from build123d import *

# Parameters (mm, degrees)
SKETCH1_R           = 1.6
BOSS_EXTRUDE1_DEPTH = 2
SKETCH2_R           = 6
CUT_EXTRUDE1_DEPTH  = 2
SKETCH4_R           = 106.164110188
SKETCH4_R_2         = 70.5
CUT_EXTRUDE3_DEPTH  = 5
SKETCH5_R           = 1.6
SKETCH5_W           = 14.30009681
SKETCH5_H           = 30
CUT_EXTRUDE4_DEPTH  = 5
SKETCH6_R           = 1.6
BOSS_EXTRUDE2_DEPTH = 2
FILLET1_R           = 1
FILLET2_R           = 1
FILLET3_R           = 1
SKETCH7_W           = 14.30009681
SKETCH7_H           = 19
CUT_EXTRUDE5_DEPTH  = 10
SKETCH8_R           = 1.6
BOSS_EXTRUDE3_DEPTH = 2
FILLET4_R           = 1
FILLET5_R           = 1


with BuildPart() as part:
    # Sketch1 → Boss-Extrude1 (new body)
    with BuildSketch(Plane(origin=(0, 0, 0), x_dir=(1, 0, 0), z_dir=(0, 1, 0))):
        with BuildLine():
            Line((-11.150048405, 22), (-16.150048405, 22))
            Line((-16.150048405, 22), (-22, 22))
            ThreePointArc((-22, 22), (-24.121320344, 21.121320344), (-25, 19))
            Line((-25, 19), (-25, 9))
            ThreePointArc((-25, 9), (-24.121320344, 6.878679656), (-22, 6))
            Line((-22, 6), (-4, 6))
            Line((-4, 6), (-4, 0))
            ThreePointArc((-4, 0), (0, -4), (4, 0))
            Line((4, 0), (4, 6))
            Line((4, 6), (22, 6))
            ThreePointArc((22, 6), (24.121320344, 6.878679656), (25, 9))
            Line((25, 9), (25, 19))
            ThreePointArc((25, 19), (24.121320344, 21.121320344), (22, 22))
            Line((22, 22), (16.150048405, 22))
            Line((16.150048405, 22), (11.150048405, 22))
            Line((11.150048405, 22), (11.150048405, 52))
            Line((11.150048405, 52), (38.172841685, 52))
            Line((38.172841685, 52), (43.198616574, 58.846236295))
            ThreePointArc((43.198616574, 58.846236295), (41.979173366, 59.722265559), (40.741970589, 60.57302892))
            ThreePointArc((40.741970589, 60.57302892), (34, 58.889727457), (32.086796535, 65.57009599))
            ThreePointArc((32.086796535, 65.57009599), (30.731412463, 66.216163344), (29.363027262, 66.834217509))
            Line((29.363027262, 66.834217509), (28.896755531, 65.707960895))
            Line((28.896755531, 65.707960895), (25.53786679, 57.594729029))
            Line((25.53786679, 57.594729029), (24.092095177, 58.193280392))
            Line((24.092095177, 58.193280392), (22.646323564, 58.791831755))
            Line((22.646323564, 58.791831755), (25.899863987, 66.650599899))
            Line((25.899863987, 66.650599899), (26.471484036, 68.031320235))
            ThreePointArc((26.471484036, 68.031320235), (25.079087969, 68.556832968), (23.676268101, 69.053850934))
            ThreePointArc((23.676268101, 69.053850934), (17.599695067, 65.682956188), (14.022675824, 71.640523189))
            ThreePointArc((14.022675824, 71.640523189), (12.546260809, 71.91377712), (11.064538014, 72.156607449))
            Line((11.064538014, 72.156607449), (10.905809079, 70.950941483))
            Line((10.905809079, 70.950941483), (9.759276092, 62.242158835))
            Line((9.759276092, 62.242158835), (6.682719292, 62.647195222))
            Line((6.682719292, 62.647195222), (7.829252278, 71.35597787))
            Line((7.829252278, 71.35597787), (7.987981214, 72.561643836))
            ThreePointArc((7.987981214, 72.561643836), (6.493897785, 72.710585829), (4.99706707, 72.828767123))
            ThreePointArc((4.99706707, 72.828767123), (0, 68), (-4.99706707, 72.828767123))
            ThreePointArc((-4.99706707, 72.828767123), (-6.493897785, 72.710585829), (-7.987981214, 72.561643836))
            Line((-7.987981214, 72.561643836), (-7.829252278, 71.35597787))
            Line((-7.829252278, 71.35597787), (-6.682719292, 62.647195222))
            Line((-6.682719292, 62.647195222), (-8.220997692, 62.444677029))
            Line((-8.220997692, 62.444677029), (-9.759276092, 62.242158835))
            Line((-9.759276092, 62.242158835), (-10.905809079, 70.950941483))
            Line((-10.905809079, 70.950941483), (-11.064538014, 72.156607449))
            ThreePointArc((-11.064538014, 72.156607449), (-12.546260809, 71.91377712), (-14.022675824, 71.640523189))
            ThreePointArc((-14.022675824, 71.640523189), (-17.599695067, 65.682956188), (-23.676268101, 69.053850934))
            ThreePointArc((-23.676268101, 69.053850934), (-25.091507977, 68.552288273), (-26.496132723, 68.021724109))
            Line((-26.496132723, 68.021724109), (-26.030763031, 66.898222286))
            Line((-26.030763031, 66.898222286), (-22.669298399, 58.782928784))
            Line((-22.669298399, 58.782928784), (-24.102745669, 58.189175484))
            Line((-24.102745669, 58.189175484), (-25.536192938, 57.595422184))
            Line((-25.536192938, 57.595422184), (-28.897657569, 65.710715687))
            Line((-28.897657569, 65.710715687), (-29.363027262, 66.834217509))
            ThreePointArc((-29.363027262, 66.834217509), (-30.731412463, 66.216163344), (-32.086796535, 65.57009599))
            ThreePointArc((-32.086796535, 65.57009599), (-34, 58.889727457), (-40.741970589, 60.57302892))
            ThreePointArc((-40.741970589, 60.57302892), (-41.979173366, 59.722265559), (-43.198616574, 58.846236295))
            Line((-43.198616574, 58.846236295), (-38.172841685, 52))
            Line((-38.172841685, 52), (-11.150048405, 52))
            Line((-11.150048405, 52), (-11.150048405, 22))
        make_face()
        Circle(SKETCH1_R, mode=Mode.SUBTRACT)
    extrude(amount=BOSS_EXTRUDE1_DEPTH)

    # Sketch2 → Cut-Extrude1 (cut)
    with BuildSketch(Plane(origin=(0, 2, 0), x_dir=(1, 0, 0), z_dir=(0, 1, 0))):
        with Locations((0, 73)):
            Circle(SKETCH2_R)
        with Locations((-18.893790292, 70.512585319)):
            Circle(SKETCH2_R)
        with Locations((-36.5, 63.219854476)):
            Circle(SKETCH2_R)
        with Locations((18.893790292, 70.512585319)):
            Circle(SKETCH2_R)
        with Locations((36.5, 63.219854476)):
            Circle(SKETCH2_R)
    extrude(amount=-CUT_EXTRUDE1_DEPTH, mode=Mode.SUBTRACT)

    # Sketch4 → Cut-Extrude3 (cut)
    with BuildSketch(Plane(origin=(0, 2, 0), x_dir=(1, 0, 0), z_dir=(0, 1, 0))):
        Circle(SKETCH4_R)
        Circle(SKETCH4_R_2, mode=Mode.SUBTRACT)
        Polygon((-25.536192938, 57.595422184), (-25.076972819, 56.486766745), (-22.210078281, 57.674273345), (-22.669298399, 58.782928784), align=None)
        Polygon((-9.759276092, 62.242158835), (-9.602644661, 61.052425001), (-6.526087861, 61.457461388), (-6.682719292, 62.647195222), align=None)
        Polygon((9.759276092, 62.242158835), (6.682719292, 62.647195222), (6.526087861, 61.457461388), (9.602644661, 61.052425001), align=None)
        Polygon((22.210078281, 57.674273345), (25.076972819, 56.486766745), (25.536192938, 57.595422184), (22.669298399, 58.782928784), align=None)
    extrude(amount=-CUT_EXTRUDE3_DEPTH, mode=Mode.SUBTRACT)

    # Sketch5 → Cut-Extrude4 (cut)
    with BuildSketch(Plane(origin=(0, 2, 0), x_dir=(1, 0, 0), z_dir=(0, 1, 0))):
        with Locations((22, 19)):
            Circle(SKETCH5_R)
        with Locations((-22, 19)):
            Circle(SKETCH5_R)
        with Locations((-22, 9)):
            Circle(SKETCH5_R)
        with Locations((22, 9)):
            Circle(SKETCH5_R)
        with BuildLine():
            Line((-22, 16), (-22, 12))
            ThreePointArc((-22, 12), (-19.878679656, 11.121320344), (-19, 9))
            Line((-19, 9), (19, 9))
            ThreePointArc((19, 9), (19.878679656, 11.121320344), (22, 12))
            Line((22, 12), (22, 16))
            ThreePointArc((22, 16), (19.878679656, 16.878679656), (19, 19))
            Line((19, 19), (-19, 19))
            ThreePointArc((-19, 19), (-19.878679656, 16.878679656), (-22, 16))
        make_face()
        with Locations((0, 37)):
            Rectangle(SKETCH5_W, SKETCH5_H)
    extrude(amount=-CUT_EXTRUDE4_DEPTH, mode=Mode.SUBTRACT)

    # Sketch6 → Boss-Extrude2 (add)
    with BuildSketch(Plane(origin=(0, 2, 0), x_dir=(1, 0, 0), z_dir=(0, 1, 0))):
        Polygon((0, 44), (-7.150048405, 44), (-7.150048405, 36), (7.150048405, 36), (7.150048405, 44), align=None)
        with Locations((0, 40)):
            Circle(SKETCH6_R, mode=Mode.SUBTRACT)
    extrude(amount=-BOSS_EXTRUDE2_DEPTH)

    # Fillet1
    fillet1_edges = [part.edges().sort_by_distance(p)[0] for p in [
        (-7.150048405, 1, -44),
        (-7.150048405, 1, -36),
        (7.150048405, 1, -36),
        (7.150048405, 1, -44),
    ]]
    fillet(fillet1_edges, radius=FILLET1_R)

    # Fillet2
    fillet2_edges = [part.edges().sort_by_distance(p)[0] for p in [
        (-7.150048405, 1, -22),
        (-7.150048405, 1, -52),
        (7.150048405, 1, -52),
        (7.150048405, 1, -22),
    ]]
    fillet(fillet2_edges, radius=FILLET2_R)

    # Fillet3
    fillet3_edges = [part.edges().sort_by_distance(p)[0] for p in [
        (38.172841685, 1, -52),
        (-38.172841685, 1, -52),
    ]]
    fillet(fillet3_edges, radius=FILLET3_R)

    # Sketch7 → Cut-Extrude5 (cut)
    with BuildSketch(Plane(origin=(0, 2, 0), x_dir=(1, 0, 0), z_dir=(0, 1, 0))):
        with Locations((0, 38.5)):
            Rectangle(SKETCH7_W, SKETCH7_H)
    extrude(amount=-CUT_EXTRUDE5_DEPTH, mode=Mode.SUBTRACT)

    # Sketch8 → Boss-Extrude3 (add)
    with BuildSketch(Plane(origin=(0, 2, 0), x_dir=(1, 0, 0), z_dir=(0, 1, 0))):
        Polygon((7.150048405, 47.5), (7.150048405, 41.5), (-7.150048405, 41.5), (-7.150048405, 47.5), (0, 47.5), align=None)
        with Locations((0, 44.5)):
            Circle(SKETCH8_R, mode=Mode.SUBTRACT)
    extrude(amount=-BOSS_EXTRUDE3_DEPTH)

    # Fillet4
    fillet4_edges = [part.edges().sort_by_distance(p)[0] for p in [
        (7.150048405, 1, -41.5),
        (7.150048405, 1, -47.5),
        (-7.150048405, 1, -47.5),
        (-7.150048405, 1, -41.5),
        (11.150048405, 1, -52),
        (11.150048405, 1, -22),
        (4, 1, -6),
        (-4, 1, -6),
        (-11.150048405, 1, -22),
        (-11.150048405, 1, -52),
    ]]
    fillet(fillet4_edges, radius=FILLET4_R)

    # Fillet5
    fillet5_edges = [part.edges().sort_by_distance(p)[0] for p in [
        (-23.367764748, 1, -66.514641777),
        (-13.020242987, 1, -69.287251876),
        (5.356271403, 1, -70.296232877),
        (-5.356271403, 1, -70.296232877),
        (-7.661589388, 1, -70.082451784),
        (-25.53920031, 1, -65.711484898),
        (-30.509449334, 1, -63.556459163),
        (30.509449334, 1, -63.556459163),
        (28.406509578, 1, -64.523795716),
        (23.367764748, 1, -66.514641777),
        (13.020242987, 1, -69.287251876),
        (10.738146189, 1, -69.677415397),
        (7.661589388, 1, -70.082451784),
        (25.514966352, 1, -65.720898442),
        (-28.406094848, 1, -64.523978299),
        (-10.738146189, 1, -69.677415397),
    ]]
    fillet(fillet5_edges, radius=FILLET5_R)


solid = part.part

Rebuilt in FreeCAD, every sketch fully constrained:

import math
import FreeCAD as App
import Part
import Sketcher
from FreeCAD import Vector
Q = App.Units.Quantity


def edges_at(feature, points):
    """Names of the edges that pass closest to the given points."""
    edges = feature.Shape.Edges
    near = lambda p: min(range(len(edges)), key=lambda i: edges[i].distToShape(Part.Vertex(*p))[0])
    return sorted({f"Edge{near(p) + 1}" for p in points})


def add_polygon(sketch, points):
    """Adds a closed chain of lines whose ends are joined by coincident constraints."""
    first, n = sketch.GeometryCount, len(points)
    for a, b in zip(points, points[1:] + points[:1]):
        sketch.addGeometry(Part.LineSegment(App.Vector(*a, 0), App.Vector(*b, 0)), False)
    for i in range(n):
        sketch.addConstraint(Sketcher.Constraint("Coincident", first + i, 2, first + (i + 1) % n, 1))

doc = App.newDocument("Part")
body = doc.addObject("PartDesign::Body", "Body")

sketch1 = body.newObject("Sketcher::SketchObject", "Sketch")
sketch1.AttachmentSupport = (doc.getObject("XZ_Plane"), [""])
sketch1.MapMode = "FlatFace"
sketch1.addGeometry(Part.LineSegment(Vector(-11.2, -22, 0), Vector(-22, -22, 0)), False)
sketch1.addGeometry(Part.ArcOfCircle(Part.Circle(Vector(-22, -19, 0), Vector(0, 0, 1), 3), math.radians(180), math.radians(270)), False)
sketch1.addGeometry(Part.LineSegment(Vector(-25, -19, 0), Vector(-25, -9, 0)), False)
sketch1.addGeometry(Part.ArcOfCircle(Part.Circle(Vector(-22, -9, 0), Vector(0, 0, 1), 3), math.radians(90), math.radians(180)), False)
sketch1.addGeometry(Part.LineSegment(Vector(-22, -6, 0), Vector(-4, -6, 0)), False)
sketch1.addGeometry(Part.LineSegment(Vector(-4, -6, 0), Vector(-4, 0, 0)), False)
sketch1.addGeometry(Part.ArcOfCircle(Part.Circle(Vector(0, 0, 0), Vector(0, 0, 1), 4), math.radians(0), math.radians(180)), False)
sketch1.addGeometry(Part.LineSegment(Vector(4, 0, 0), Vector(4, -6, 0)), False)
sketch1.addGeometry(Part.LineSegment(Vector(4, -6, 0), Vector(22, -6, 0)), False)
sketch1.addGeometry(Part.ArcOfCircle(Part.Circle(Vector(22, -9, 0), Vector(0, 0, 1), 3), math.radians(0), math.radians(90)), False)
sketch1.addGeometry(Part.LineSegment(Vector(25, -9, 0), Vector(25, -19, 0)), False)
sketch1.addGeometry(Part.ArcOfCircle(Part.Circle(Vector(22, -19, 0), Vector(0, 0, 1), 3), math.radians(-90), math.radians(0)), False)
sketch1.addGeometry(Part.LineSegment(Vector(22, -22, 0), Vector(11.2, -22, 0)), False)
sketch1.addGeometry(Part.LineSegment(Vector(11.2, -22, 0), Vector(11.2, -52, 0)), False)
sketch1.addGeometry(Part.LineSegment(Vector(11.2, -52, 0), Vector(38.2, -52, 0)), False)
sketch1.addGeometry(Part.LineSegment(Vector(38.2, -52, 0), Vector(43.2, -58.8, 0)), False)
sketch1.addGeometry(Part.ArcOfCircle(Part.Circle(Vector(0, 0, 0), Vector(0, 0, 1), 73), math.radians(-56.07), math.radians(-53.72)), False)
sketch1.addGeometry(Part.ArcOfCircle(Part.Circle(Vector(36.5, -63.2, 0), Vector(0, 0, 1), 5), math.radians(32), math.radians(208)), False)
sketch1.addGeometry(Part.ArcOfCircle(Part.Circle(Vector(0, 0, 0), Vector(0, 0, 1), 73), math.radians(-66.28), math.radians(-63.93)), False)
sketch1.addGeometry(Part.LineSegment(Vector(29.4, -66.8, 0), Vector(28.9, -65.7, 0)), False)
sketch1.addGeometry(Part.LineSegment(Vector(28.9, -65.7, 0), Vector(25.5, -57.6, 0)), False)
sketch1.addGeometry(Part.LineSegment(Vector(25.5, -57.6, 0), Vector(22.6, -58.8, 0)), False)
sketch1.addGeometry(Part.LineSegment(Vector(22.6, -58.8, 0), Vector(25.9, -66.7, 0)), False)
sketch1.addGeometry(Part.LineSegment(Vector(25.9, -66.7, 0), Vector(26.5, -68, 0)), False)
sketch1.addGeometry(Part.ArcOfCircle(Part.Circle(Vector(0, 0, 0), Vector(0, 0, 1), 73), math.radians(-71.07), math.radians(-68.74)), False)
sketch1.addGeometry(Part.ArcOfCircle(Part.Circle(Vector(18.9, -70.5, 0), Vector(0, 0, 1), 5), math.radians(17), math.radians(193)), False)
sketch1.addGeometry(Part.ArcOfCircle(Part.Circle(Vector(0, 0, 0), Vector(0, 0, 1), 73), math.radians(-81.28), math.radians(-78.93)), False)
sketch1.addGeometry(Part.LineSegment(Vector(11.1, -72.2, 0), Vector(10.9, -71, 0)), False)
sketch1.addGeometry(Part.LineSegment(Vector(10.9, -71, 0), Vector(9.8, -62.2, 0)), False)
sketch1.addGeometry(Part.LineSegment(Vector(9.8, -62.2, 0), Vector(6.7, -62.6, 0)), False)
sketch1.addGeometry(Part.LineSegment(Vector(6.7, -62.6, 0), Vector(7.8, -71.4, 0)), False)
sketch1.addGeometry(Part.LineSegment(Vector(7.8, -71.4, 0), Vector(8, -72.6, 0)), False)
sketch1.addGeometry(Part.ArcOfCircle(Part.Circle(Vector(0, 0, 0), Vector(0, 0, 1), 73), math.radians(-86.07), math.radians(-83.72)), False)
sketch1.addGeometry(Part.ArcOfCircle(Part.Circle(Vector(0, -73, 0), Vector(0, 0, 1), 5), math.radians(2), math.radians(178)), False)
sketch1.addGeometry(Part.ArcOfCircle(Part.Circle(Vector(0, 0, 0), Vector(0, 0, 1), 73), math.radians(-96.28), math.radians(-93.93)), False)
sketch1.addGeometry(Part.LineSegment(Vector(-8, -72.6, 0), Vector(-7.8, -71.4, 0)), False)
sketch1.addGeometry(Part.LineSegment(Vector(-7.8, -71.4, 0), Vector(-6.7, -62.6, 0)), False)
sketch1.addGeometry(Part.LineSegment(Vector(-6.7, -62.6, 0), Vector(-8.2, -62.4, 0)), False)
sketch1.addGeometry(Part.LineSegment(Vector(-8.2, -62.4, 0), Vector(-9.8, -62.2, 0)), False)
sketch1.addGeometry(Part.LineSegment(Vector(-9.8, -62.2, 0), Vector(-10.9, -71, 0)), False)
sketch1.addGeometry(Part.LineSegment(Vector(-10.9, -71, 0), Vector(-11.1, -72.2, 0)), False)
sketch1.addGeometry(Part.ArcOfCircle(Part.Circle(Vector(0, 0, 0), Vector(0, 0, 1), 73), math.radians(-101.07), math.radians(-98.72)), False)
sketch1.addGeometry(Part.ArcOfCircle(Part.Circle(Vector(-18.9, -70.5, 0), Vector(0, 0, 1), 5), math.radians(-13), math.radians(163)), False)
sketch1.addGeometry(Part.ArcOfCircle(Part.Circle(Vector(0, 0, 0), Vector(0, 0, 1), 73), math.radians(-111.28), math.radians(-108.93)), False)
sketch1.addGeometry(Part.LineSegment(Vector(-26.5, -68, 0), Vector(-26, -66.9, 0)), False)
sketch1.addGeometry(Part.LineSegment(Vector(-26, -66.9, 0), Vector(-22.7, -58.8, 0)), False)
sketch1.addGeometry(Part.LineSegment(Vector(-22.7, -58.8, 0), Vector(-24.1, -58.2, 0)), False)
sketch1.addGeometry(Part.LineSegment(Vector(-24.1, -58.2, 0), Vector(-25.5, -57.6, 0)), False)
sketch1.addGeometry(Part.LineSegment(Vector(-25.5, -57.6, 0), Vector(-28.9, -65.7, 0)), False)
sketch1.addGeometry(Part.LineSegment(Vector(-28.9, -65.7, 0), Vector(-29.4, -66.8, 0)), False)
sketch1.addGeometry(Part.ArcOfCircle(Part.Circle(Vector(0, 0, 0), Vector(0, 0, 1), 73), math.radians(-116.07), math.radians(-113.72)), False)
sketch1.addGeometry(Part.ArcOfCircle(Part.Circle(Vector(-36.5, -63.2, 0), Vector(0, 0, 1), 5), math.radians(-28), math.radians(148)), False)
sketch1.addGeometry(Part.ArcOfCircle(Part.Circle(Vector(0, 0, 0), Vector(0, 0, 1), 73), math.radians(-126.28), math.radians(-123.93)), False)
sketch1.addGeometry(Part.LineSegment(Vector(-43.2, -58.8, 0), Vector(-38.2, -52, 0)), False)
sketch1.addGeometry(Part.LineSegment(Vector(-38.2, -52, 0), Vector(-11.2, -52, 0)), False)
sketch1.addGeometry(Part.LineSegment(Vector(-11.2, -52, 0), Vector(-11.2, -22, 0)), False)
sketch1.addGeometry(Part.Circle(Vector(0, 0, 0), Vector(0, 0, 1), 1.6), False)
sketch1.addConstraint(Sketcher.Constraint("Tangent", 0, 2, 1, 2))
sketch1.addConstraint(Sketcher.Constraint("Tangent", 1, 1, 2, 1))
sketch1.addConstraint(Sketcher.Constraint("Tangent", 2, 2, 3, 2))
sketch1.addConstraint(Sketcher.Constraint("Tangent", 3, 1, 4, 1))
sketch1.addConstraint(Sketcher.Constraint("Coincident", 4, 2, 5, 1))
sketch1.addConstraint(Sketcher.Constraint("Tangent", 5, 2, 6, 2))
sketch1.addConstraint(Sketcher.Constraint("Tangent", 6, 1, 7, 1))
sketch1.addConstraint(Sketcher.Constraint("Coincident", 7, 2, 8, 1))
sketch1.addConstraint(Sketcher.Constraint("Tangent", 8, 2, 9, 2))
sketch1.addConstraint(Sketcher.Constraint("Tangent", 9, 1, 10, 1))
sketch1.addConstraint(Sketcher.Constraint("Tangent", 10, 2, 11, 2))
sketch1.addConstraint(Sketcher.Constraint("Tangent", 11, 1, 12, 1))
sketch1.addConstraint(Sketcher.Constraint("Coincident", 12, 2, 13, 1))
sketch1.addConstraint(Sketcher.Constraint("Coincident", 13, 2, 14, 1))
sketch1.addConstraint(Sketcher.Constraint("Coincident", 14, 2, 15, 1))
sketch1.addConstraint(Sketcher.Constraint("Coincident", 15, 2, 16, 2))
sketch1.addConstraint(Sketcher.Constraint("Coincident", 16, 1, 17, 1))
sketch1.addConstraint(Sketcher.Constraint("Coincident", 17, 2, 18, 2))
sketch1.addConstraint(Sketcher.Constraint("Coincident", 18, 1, 19, 1))
sketch1.addConstraint(Sketcher.Constraint("Coincident", 19, 2, 20, 1))
sketch1.addConstraint(Sketcher.Constraint("Coincident", 20, 2, 21, 1))
sketch1.addConstraint(Sketcher.Constraint("Coincident", 21, 2, 22, 1))
sketch1.addConstraint(Sketcher.Constraint("Coincident", 22, 2, 23, 1))
sketch1.addConstraint(Sketcher.Constraint("Coincident", 23, 2, 24, 2))
sketch1.addConstraint(Sketcher.Constraint("Coincident", 24, 1, 25, 1))
sketch1.addConstraint(Sketcher.Constraint("Coincident", 25, 2, 26, 2))
sketch1.addConstraint(Sketcher.Constraint("Coincident", 26, 1, 27, 1))
sketch1.addConstraint(Sketcher.Constraint("Coincident", 27, 2, 28, 1))
sketch1.addConstraint(Sketcher.Constraint("Coincident", 28, 2, 29, 1))
sketch1.addConstraint(Sketcher.Constraint("Coincident", 29, 2, 30, 1))
sketch1.addConstraint(Sketcher.Constraint("Coincident", 30, 2, 31, 1))
sketch1.addConstraint(Sketcher.Constraint("Coincident", 31, 2, 32, 2))
sketch1.addConstraint(Sketcher.Constraint("Coincident", 32, 1, 33, 1))
sketch1.addConstraint(Sketcher.Constraint("Coincident", 33, 2, 34, 2))
sketch1.addConstraint(Sketcher.Constraint("Coincident", 34, 1, 35, 1))
sketch1.addConstraint(Sketcher.Constraint("Coincident", 35, 2, 36, 1))
sketch1.addConstraint(Sketcher.Constraint("Coincident", 36, 2, 37, 1))
sketch1.addConstraint(Sketcher.Constraint("Coincident", 37, 2, 38, 1))
sketch1.addConstraint(Sketcher.Constraint("Coincident", 38, 2, 39, 1))
sketch1.addConstraint(Sketcher.Constraint("Coincident", 39, 2, 40, 1))
sketch1.addConstraint(Sketcher.Constraint("Coincident", 40, 2, 41, 2))
sketch1.addConstraint(Sketcher.Constraint("Coincident", 41, 1, 42, 1))
sketch1.addConstraint(Sketcher.Constraint("Coincident", 42, 2, 43, 2))
sketch1.addConstraint(Sketcher.Constraint("Coincident", 43, 1, 44, 1))
sketch1.addConstraint(Sketcher.Constraint("Coincident", 44, 2, 45, 1))
sketch1.addConstraint(Sketcher.Constraint("Coincident", 45, 2, 46, 1))
sketch1.addConstraint(Sketcher.Constraint("Coincident", 46, 2, 47, 1))
sketch1.addConstraint(Sketcher.Constraint("Coincident", 47, 2, 48, 1))
sketch1.addConstraint(Sketcher.Constraint("Coincident", 48, 2, 49, 1))
sketch1.addConstraint(Sketcher.Constraint("Coincident", 49, 2, 50, 2))
sketch1.addConstraint(Sketcher.Constraint("Coincident", 50, 1, 51, 1))
sketch1.addConstraint(Sketcher.Constraint("Coincident", 51, 2, 52, 2))
sketch1.addConstraint(Sketcher.Constraint("Coincident", 52, 1, 53, 1))
sketch1.addConstraint(Sketcher.Constraint("Coincident", 53, 2, 54, 1))
sketch1.addConstraint(Sketcher.Constraint("Coincident", 54, 2, 55, 1))
sketch1.addConstraint(Sketcher.Constraint("Coincident", 55, 2, 0, 1))
sketch1.addConstraint(Sketcher.Constraint("Horizontal", 0))
sketch1.addConstraint(Sketcher.Constraint("Vertical", 2))
sketch1.addConstraint(Sketcher.Constraint("Horizontal", 4))
sketch1.addConstraint(Sketcher.Constraint("Vertical", 5))
sketch1.addConstraint(Sketcher.Constraint("Vertical", 7))
sketch1.addConstraint(Sketcher.Constraint("Horizontal", 8))
sketch1.addConstraint(Sketcher.Constraint("Vertical", 10))
sketch1.addConstraint(Sketcher.Constraint("Horizontal", 12))
sketch1.addConstraint(Sketcher.Constraint("Vertical", 13))
sketch1.addConstraint(Sketcher.Constraint("Horizontal", 14))
sketch1.addConstraint(Sketcher.Constraint("Horizontal", 54))
sketch1.addConstraint(Sketcher.Constraint("Vertical", 55))
sketch1.addConstraint(Sketcher.Constraint("Coincident", 6, 3, -1, 1))
sketch1.addConstraint(Sketcher.Constraint("Coincident", 16, 3, -1, 1))
sketch1.addConstraint(Sketcher.Constraint("Coincident", 18, 3, -1, 1))
sketch1.addConstraint(Sketcher.Constraint("Coincident", 24, 3, -1, 1))
sketch1.addConstraint(Sketcher.Constraint("Coincident", 26, 3, -1, 1))
sketch1.addConstraint(Sketcher.Constraint("Coincident", 32, 3, -1, 1))
sketch1.addConstraint(Sketcher.Constraint("Coincident", 34, 3, -1, 1))
sketch1.addConstraint(Sketcher.Constraint("Coincident", 41, 3, -1, 1))
sketch1.addConstraint(Sketcher.Constraint("Coincident", 43, 3, -1, 1))
sketch1.addConstraint(Sketcher.Constraint("Coincident", 50, 3, -1, 1))
sketch1.addConstraint(Sketcher.Constraint("Coincident", 52, 3, -1, 1))
sketch1.addConstraint(Sketcher.Constraint("Coincident", 56, 3, -1, 1))
sketch1.addConstraint(Sketcher.Constraint("Equal", 1, 3))
sketch1.addConstraint(Sketcher.Constraint("Equal", 3, 9))
sketch1.addConstraint(Sketcher.Constraint("Equal", 9, 11))
sketch1.addConstraint(Sketcher.Constraint("Equal", 16, 18))
sketch1.addConstraint(Sketcher.Constraint("Equal", 18, 24))
sketch1.addConstraint(Sketcher.Constraint("Equal", 17, 25))
sketch1.addConstraint(Sketcher.Constraint("Equal", 24, 26))
sketch1.addConstraint(Sketcher.Constraint("Equal", 16, 32))
sketch1.addConstraint(Sketcher.Constraint("Equal", 25, 33))
sketch1.addConstraint(Sketcher.Constraint("Equal", 32, 34))
sketch1.addConstraint(Sketcher.Constraint("Equal", 26, 41))
sketch1.addConstraint(Sketcher.Constraint("Equal", 33, 42))
sketch1.addConstraint(Sketcher.Constraint("Equal", 34, 43))
sketch1.addConstraint(Sketcher.Constraint("Equal", 43, 50))
sketch1.addConstraint(Sketcher.Constraint("Equal", 42, 51))
sketch1.addConstraint(Sketcher.Constraint("Equal", 50, 52))
sketch1.addConstraint(Sketcher.Constraint("Symmetric", 3, 3, 9, 3, -2))
sketch1.addConstraint(Sketcher.Constraint("Symmetric", 25, 3, 42, 3, -2))
sketch1.addConstraint(Sketcher.Constraint("Symmetric", 17, 3, 51, 3, -2))
sketch1.addConstraint(Sketcher.Constraint("Symmetric", 30, 2, 35, 2, -2))
sketch1.addConstraint(Sketcher.Constraint("Symmetric", 29, 2, 36, 2, -2))
sketch1.addConstraint(Sketcher.Constraint("Symmetric", 28, 2, 38, 2, -2))
sketch1.addConstraint(Sketcher.Constraint("Symmetric", 27, 2, 39, 2, -2))
sketch1.addConstraint(Sketcher.Constraint("Symmetric", 14, 2, 53, 2, -2))
sketch1.addConstraint(Sketcher.Constraint("Symmetric", 12, 2, 55, 2, -2))
sketch1.addConstraint(Sketcher.Constraint("PointOnObject", 33, 3, -2))
sketch1.addConstraint(Sketcher.Constraint("Parallel", 19, 20))
sketch1.addConstraint(Sketcher.Constraint("Perpendicular", 20, 21))
sketch1.addConstraint(Sketcher.Constraint("Perpendicular", 21, 22))
sketch1.addConstraint(Sketcher.Constraint("Parallel", 22, 23))
sketch1.addConstraint(Sketcher.Constraint("Parallel", 27, 28))
sketch1.addConstraint(Sketcher.Constraint("Perpendicular", 28, 29))
sketch1.addConstraint(Sketcher.Constraint("Perpendicular", 29, 30))
sketch1.addConstraint(Sketcher.Constraint("Parallel", 30, 31))
sketch1.addConstraint(Sketcher.Constraint("Parallel", 35, 36))
sketch1.addConstraint(Sketcher.Constraint("Perpendicular", 36, 37))
sketch1.addConstraint(Sketcher.Constraint("Parallel", 39, 40))
sketch1.addConstraint(Sketcher.Constraint("Parallel", 44, 45))
sketch1.addConstraint(Sketcher.Constraint("Perpendicular", 45, 46))
sketch1.addConstraint(Sketcher.Constraint("Parallel", 46, 47))
sketch1.addConstraint(Sketcher.Constraint("Perpendicular", 47, 48))
sketch1.addConstraint(Sketcher.Constraint("Parallel", 48, 49))
sketch1.addConstraint(Sketcher.Constraint("Horizontal", 18, 1, 49, 2))
sketch1.addConstraint(Sketcher.Constraint("Horizontal", 15, 2, 52, 1))
sketch1.addConstraint(Sketcher.Constraint("Equal", 28, 30))
sketch1.addConstraint(Sketcher.Constraint("Equal", 27, 31))
sketch1.addConstraint(Sketcher.Constraint("Equal", 37, 38))
sketch1.addConstraint(Sketcher.Constraint("Equal", 40, 44))
sketch1.addConstraint(Sketcher.Constraint("Equal", 39, 45))
sketch1.addConstraint(Sketcher.Constraint("Equal", 38, 46))
sketch1.addConstraint(Sketcher.Constraint("Equal", 46, 47))
sketch1.addConstraint(Sketcher.Constraint("Equal", 45, 48))
sketch1.addConstraint(Sketcher.Constraint("Equal", 44, 49))
sketch1.addConstraint(Sketcher.Constraint("Radius", 1, 3.0))
sketch1.addConstraint(Sketcher.Constraint("Radius", 6, 4.0))
sketch1.addConstraint(Sketcher.Constraint("Radius", 16, 73.0))
sketch1.addConstraint(Sketcher.Constraint("Radius", 17, 5.0))
sketch1.addConstraint(Sketcher.Constraint("Diameter", 56, 3.2))
sketch1.addConstraint(Sketcher.Constraint("DistanceX", 4, 1, 4, 2, 18.0))
sketch1.addConstraint(Sketcher.Constraint("DistanceY", 2, 1, 2, 2, 10.0))
sketch1.addConstraint(Sketcher.Constraint("DistanceY", 5, 1, 5, 2, 6.0))
sketch1.addConstraint(Sketcher.Constraint("DistanceY", 13, 2, 13, 1, 30.0))
sketch1.addConstraint(Sketcher.Constraint("DistanceY", 33, 3, -1, 1, 73.0))
sketch1.addConstraint(Sketcher.Constraint("Angle", 27, Q("97.5 deg")))
sketch1.addConstraint(Sketcher.Constraint("Angle", 44, Q("67.5 deg")))
sketch1.addConstraint(Sketcher.Constraint("DistanceX", -1, 1, 17, 3, 36.5))
sketch1.addConstraint(Sketcher.Constraint("Distance", 15, 8.492901))
sketch1.addConstraint(Sketcher.Constraint("DistanceX", 0, 2, 0, 1, 10.849952))
sketch1.addConstraint(Sketcher.Constraint("DistanceY", 22, 2, -1, 1, 66.6506))
sketch1.addConstraint(Sketcher.Constraint("DistanceX", 45, 2, -1, 1, 22.669298))
sketch1.addConstraint(Sketcher.Constraint("Distance", 19, 1.21896))
sketch1.addConstraint(Sketcher.Constraint("Distance", 20, 8.78104))
sketch1.addConstraint(Sketcher.Constraint("Distance", 21, 3.129549))
sketch1.addConstraint(Sketcher.Constraint("Distance", 22, 8.505631))
sketch1.addConstraint(Sketcher.Constraint("Distance", 23, 1.494369))
sketch1.addConstraint(Sketcher.Constraint("Distance", 27, 1.21607))
sketch1.addConstraint(Sketcher.Constraint("DistanceX", -1, 1, 25, 3, 18.89379))
sketch1.addConstraint(Sketcher.Constraint("DistanceX", -1, 1, 16, 1, 40.741971))
sketch1.addConstraint(Sketcher.Constraint("DistanceX", -1, 1, 24, 1, 23.676268))
sketch1.addConstraint(Sketcher.Constraint("DistanceX", -1, 1, 15, 2, 43.198617))
pad1 = body.newObject("PartDesign::Pad", "Pad")
pad1.Profile = sketch1
pad1.Length = 2
pad1.Reversed = True

sketch2 = body.newObject("Sketcher::SketchObject", "Sketch001")
sketch2.AttachmentSupport = (doc.getObject("XZ_Plane"), [""])
sketch2.MapMode = "FlatFace"
sketch2.AttachmentOffset = App.Placement(Vector(0, 0, -2), App.Rotation())
sketch2.addGeometry(Part.Circle(Vector(0, -73, 0), Vector(0, 0, 1), 6), False)
sketch2.addGeometry(Part.Circle(Vector(-19, -71, 0), Vector(0, 0, 1), 6), False)
sketch2.addGeometry(Part.Circle(Vector(-36, -63, 0), Vector(0, 0, 1), 6), False)
sketch2.addGeometry(Part.Circle(Vector(19, -71, 0), Vector(0, 0, 1), 6), False)
sketch2.addGeometry(Part.Circle(Vector(36, -63, 0), Vector(0, 0, 1), 6), False)
sketch2.addConstraint(Sketcher.Constraint("Equal", 0, 1))
sketch2.addConstraint(Sketcher.Constraint("Equal", 1, 2))
sketch2.addConstraint(Sketcher.Constraint("Equal", 2, 3))
sketch2.addConstraint(Sketcher.Constraint("Equal", 3, 4))
sketch2.addConstraint(Sketcher.Constraint("Symmetric", 1, 3, 3, 3, -2))
sketch2.addConstraint(Sketcher.Constraint("Symmetric", 2, 3, 4, 3, -2))
sketch2.addConstraint(Sketcher.Constraint("PointOnObject", 0, 3, -2))
sketch2.addConstraint(Sketcher.Constraint("Diameter", 0, 12.0))
sketch2.addConstraint(Sketcher.Constraint("DistanceY", 0, 3, -1, 1, 73.0))
sketch2.addConstraint(Sketcher.Constraint("DistanceX", 2, 3, 4, 3, 73.0))
sketch2.addConstraint(Sketcher.Constraint("DistanceX", 1, 3, -1, 1, 18.89379))
sketch2.addConstraint(Sketcher.Constraint("DistanceY", 1, 3, 2, 3, 7.292731))
sketch2.addConstraint(Sketcher.Constraint("DistanceY", 1, 3, -1, 1, 70.512585))
pocket1 = body.newObject("PartDesign::Pocket", "Pocket")
pocket1.Profile = sketch2
pocket1.Length = 2
pocket1.Reversed = True

sketch3 = body.newObject("Sketcher::SketchObject", "Sketch002")
sketch3.AttachmentSupport = (doc.getObject("XZ_Plane"), [""])
sketch3.MapMode = "FlatFace"
sketch3.AttachmentOffset = App.Placement(Vector(0, 0, -2), App.Rotation())
sketch3.addGeometry(Part.Circle(Vector(0, 0, 0), Vector(0, 0, 1), 106.2), False)
sketch3.addGeometry(Part.Circle(Vector(0, 0, 0), Vector(0, 0, 1), 70.5), False)
add_polygon(sketch3, [(-25.5, -57.6), (-25.1, -56.5), (-22.2, -57.7), (-22.7, -58.8)])
add_polygon(sketch3, [(-9.8, -62.2), (-9.6, -61.1), (-6.5, -61.5), (-6.7, -62.6)])
add_polygon(sketch3, [(9.8, -62.2), (6.7, -62.6), (6.5, -61.5), (9.6, -61.1)])
add_polygon(sketch3, [(22.2, -57.7), (25.1, -56.5), (25.5, -57.6), (22.7, -58.8)])
sketch3.addConstraint(Sketcher.Constraint("Coincident", 0, 3, -1, 1))
sketch3.addConstraint(Sketcher.Constraint("Coincident", 1, 3, -1, 1))
sketch3.addConstraint(Sketcher.Constraint("Symmetric", 8, 2, 10, 2, -2))
sketch3.addConstraint(Sketcher.Constraint("Symmetric", 7, 2, 11, 2, -2))
sketch3.addConstraint(Sketcher.Constraint("Symmetric", 6, 2, 12, 2, -2))
sketch3.addConstraint(Sketcher.Constraint("Symmetric", 9, 2, 13, 2, -2))
sketch3.addConstraint(Sketcher.Constraint("Symmetric", 2, 2, 14, 2, -2))
sketch3.addConstraint(Sketcher.Constraint("Symmetric", 5, 2, 15, 2, -2))
sketch3.addConstraint(Sketcher.Constraint("Symmetric", 4, 2, 16, 2, -2))
sketch3.addConstraint(Sketcher.Constraint("Symmetric", 3, 2, 17, 2, -2))
sketch3.addConstraint(Sketcher.Constraint("Perpendicular", 2, 3))
sketch3.addConstraint(Sketcher.Constraint("Perpendicular", 3, 4))
sketch3.addConstraint(Sketcher.Constraint("Perpendicular", 4, 5))
sketch3.addConstraint(Sketcher.Constraint("Perpendicular", 6, 7))
sketch3.addConstraint(Sketcher.Constraint("Perpendicular", 7, 8))
sketch3.addConstraint(Sketcher.Constraint("Perpendicular", 8, 9))
sketch3.addConstraint(Sketcher.Constraint("Equal", 4, 6))
sketch3.addConstraint(Sketcher.Constraint("Equal", 5, 7))
sketch3.addConstraint(Sketcher.Constraint("Diameter", 1, 141.0))
sketch3.addConstraint(Sketcher.Constraint("Angle", 2, Q("67.5 deg")))
sketch3.addConstraint(Sketcher.Constraint("Angle", 6, Q("82.5 deg")))
sketch3.addConstraint(Sketcher.Constraint("Distance", 2, 1.2))
sketch3.addConstraint(Sketcher.Constraint("Diameter", 0, 212.32822))
sketch3.addConstraint(Sketcher.Constraint("DistanceX", 4, 2, -1, 1, 22.669298))
sketch3.addConstraint(Sketcher.Constraint("DistanceY", 4, 2, -1, 1, 58.782929))
sketch3.addConstraint(Sketcher.Constraint("DistanceY", 7, 2, -1, 1, 61.457461))
sketch3.addConstraint(Sketcher.Constraint("DistanceX", 8, 2, -1, 1, 6.682719))
sketch3.addConstraint(Sketcher.Constraint("DistanceY", 9, 2, -1, 1, 62.242159))
pocket2 = body.newObject("PartDesign::Pocket", "Pocket001")
pocket2.Profile = sketch3
pocket2.Length = 5
pocket2.Reversed = True

sketch4 = body.newObject("Sketcher::SketchObject", "Sketch003")
sketch4.AttachmentSupport = (doc.getObject("XZ_Plane"), [""])
sketch4.MapMode = "FlatFace"
sketch4.AttachmentOffset = App.Placement(Vector(0, 0, -2), App.Rotation())
sketch4.addGeometry(Part.Circle(Vector(22, -19, 0), Vector(0, 0, 1), 1.6), False)
sketch4.addGeometry(Part.Circle(Vector(-22, -19, 0), Vector(0, 0, 1), 1.6), False)
sketch4.addGeometry(Part.Circle(Vector(-22, -9, 0), Vector(0, 0, 1), 1.6), False)
sketch4.addGeometry(Part.Circle(Vector(22, -9, 0), Vector(0, 0, 1), 1.6), False)
sketch4.addGeometry(Part.LineSegment(Vector(-22, -16, 0), Vector(-22, -12, 0)), False)
sketch4.addGeometry(Part.ArcOfCircle(Part.Circle(Vector(-22, -9, 0), Vector(0, 0, 1), 3), math.radians(-90), math.radians(0)), False)
sketch4.addGeometry(Part.LineSegment(Vector(-19, -9, 0), Vector(19, -9, 0)), False)
sketch4.addGeometry(Part.ArcOfCircle(Part.Circle(Vector(22, -9, 0), Vector(0, 0, 1), 3), math.radians(180), math.radians(270)), False)
sketch4.addGeometry(Part.LineSegment(Vector(22, -12, 0), Vector(22, -16, 0)), False)
sketch4.addGeometry(Part.ArcOfCircle(Part.Circle(Vector(22, -19, 0), Vector(0, 0, 1), 3), math.radians(90), math.radians(180)), False)
sketch4.addGeometry(Part.LineSegment(Vector(19, -19, 0), Vector(-19, -19, 0)), False)
sketch4.addGeometry(Part.ArcOfCircle(Part.Circle(Vector(-22, -19, 0), Vector(0, 0, 1), 3), math.radians(0), math.radians(90)), False)
add_polygon(sketch4, [(-7.2, -52), (-7.2, -22), (7.2, -22), (7.2, -52)])
sketch4.addConstraint(Sketcher.Constraint("Coincident", 4, 2, 5, 1))
sketch4.addConstraint(Sketcher.Constraint("Coincident", 5, 2, 6, 1))
sketch4.addConstraint(Sketcher.Constraint("Coincident", 6, 2, 7, 1))
sketch4.addConstraint(Sketcher.Constraint("Coincident", 7, 2, 8, 1))
sketch4.addConstraint(Sketcher.Constraint("Coincident", 8, 2, 9, 1))
sketch4.addConstraint(Sketcher.Constraint("Coincident", 9, 2, 10, 1))
sketch4.addConstraint(Sketcher.Constraint("Coincident", 10, 2, 11, 1))
sketch4.addConstraint(Sketcher.Constraint("Coincident", 11, 2, 4, 1))
sketch4.addConstraint(Sketcher.Constraint("Vertical", 4))
sketch4.addConstraint(Sketcher.Constraint("Horizontal", 6))
sketch4.addConstraint(Sketcher.Constraint("Vertical", 8))
sketch4.addConstraint(Sketcher.Constraint("Horizontal", 10))
sketch4.addConstraint(Sketcher.Constraint("Vertical", 12))
sketch4.addConstraint(Sketcher.Constraint("Horizontal", 13))
sketch4.addConstraint(Sketcher.Constraint("Vertical", 14))
sketch4.addConstraint(Sketcher.Constraint("Horizontal", 15))
sketch4.addConstraint(Sketcher.Constraint("Coincident", 5, 3, 2, 3))
sketch4.addConstraint(Sketcher.Constraint("Coincident", 7, 3, 3, 3))
sketch4.addConstraint(Sketcher.Constraint("Coincident", 9, 3, 0, 3))
sketch4.addConstraint(Sketcher.Constraint("Coincident", 11, 3, 1, 3))
sketch4.addConstraint(Sketcher.Constraint("Equal", 0, 1))
sketch4.addConstraint(Sketcher.Constraint("Equal", 1, 2))
sketch4.addConstraint(Sketcher.Constraint("Equal", 2, 3))
sketch4.addConstraint(Sketcher.Constraint("Equal", 5, 7))
sketch4.addConstraint(Sketcher.Constraint("Equal", 7, 9))
sketch4.addConstraint(Sketcher.Constraint("Equal", 9, 11))
sketch4.addConstraint(Sketcher.Constraint("Symmetric", 0, 3, 1, 3, -2))
sketch4.addConstraint(Sketcher.Constraint("Symmetric", 2, 3, 3, 3, -2))
sketch4.addConstraint(Sketcher.Constraint("Horizontal", 7, 3, 5, 2))
sketch4.addConstraint(Sketcher.Constraint("Horizontal", 11, 3, 9, 2))
sketch4.addConstraint(Sketcher.Constraint("Vertical", 1, 3, 2, 3))
sketch4.addConstraint(Sketcher.Constraint("Vertical", 11, 3, 4, 2))
sketch4.addConstraint(Sketcher.Constraint("Vertical", 9, 3, 7, 2))
sketch4.addConstraint(Sketcher.Constraint("Radius", 5, 3.0))
sketch4.addConstraint(Sketcher.Constraint("Diameter", 0, 3.2))
sketch4.addConstraint(Sketcher.Constraint("DistanceX", 6, 1, 6, 2, 38.0))
sketch4.addConstraint(Sketcher.Constraint("DistanceY", 4, 1, 4, 2, 4.0))
sketch4.addConstraint(Sketcher.Constraint("DistanceY", 12, 1, 12, 2, 30.0))
sketch4.addConstraint(Sketcher.Constraint("DistanceY", 0, 3, -1, 1, 19.0))
sketch4.addConstraint(Sketcher.Constraint("DistanceY", 12, 2, -1, 1, 22.0))
sketch4.addConstraint(Sketcher.Constraint("DistanceX", 13, 1, 13, 2, 14.300097))
sketch4.addConstraint(Sketcher.Constraint("DistanceX", 12, 2, -1, 1, 7.150048))
pocket3 = body.newObject("PartDesign::Pocket", "Pocket002")
pocket3.Profile = sketch4
pocket3.Length = 5
pocket3.Reversed = True

sketch5 = body.newObject("Sketcher::SketchObject", "Sketch004")
sketch5.AttachmentSupport = (doc.getObject("XZ_Plane"), [""])
sketch5.MapMode = "FlatFace"
sketch5.AttachmentOffset = App.Placement(Vector(0, 0, -2), App.Rotation())
add_polygon(sketch5, [(-7.2, -44), (-7.2, -36), (7.2, -36), (7.2, -44)])
sketch5.addGeometry(Part.Circle(Vector(0, -40, 0), Vector(0, 0, 1), 1.6), False)
sketch5.addConstraint(Sketcher.Constraint("Vertical", 0))
sketch5.addConstraint(Sketcher.Constraint("Horizontal", 1))
sketch5.addConstraint(Sketcher.Constraint("Vertical", 2))
sketch5.addConstraint(Sketcher.Constraint("Horizontal", 3))
sketch5.addConstraint(Sketcher.Constraint("PointOnObject", 4, 3, -2))
sketch5.addConstraint(Sketcher.Constraint("Diameter", 4, 3.2))
sketch5.addConstraint(Sketcher.Constraint("DistanceY", 0, 1, 0, 2, 8.0))
sketch5.addConstraint(Sketcher.Constraint("DistanceY", 4, 3, -1, 1, 40.0))
sketch5.addConstraint(Sketcher.Constraint("DistanceY", 0, 2, -1, 1, 36.0))
sketch5.addConstraint(Sketcher.Constraint("DistanceX", 1, 1, 1, 2, 14.300097))
sketch5.addConstraint(Sketcher.Constraint("DistanceX", 0, 2, -1, 1, 7.150048))
pad2 = body.newObject("PartDesign::Pad", "Pad001")
pad2.Profile = sketch5
pad2.Length = 2
doc.recompute()

fillet = body.newObject("PartDesign::Fillet", "Fillet")
fillet.Base = (pad2, edges_at(pad2, [
    (-7.15, 1, -44),
    (-7.15, 1, -36),
    (7.15, 1, -36),
    (7.15, 1, -44),
]))
fillet.Radius = 1
doc.recompute()

fillet2 = body.newObject("PartDesign::Fillet", "Fillet001")
fillet2.Base = (fillet, edges_at(fillet, [
    (-7.15, 1, -22),
    (-7.15, 1, -52),
    (7.15, 1, -52),
    (7.15, 1, -22),
]))
fillet2.Radius = 1
doc.recompute()

fillet3 = body.newObject("PartDesign::Fillet", "Fillet002")
fillet3.Base = (fillet2, edges_at(fillet2, [(38.173, 1, -52), (-38.173, 1, -52)]))
fillet3.Radius = 1

sketch6 = body.newObject("Sketcher::SketchObject", "Sketch005")
sketch6.AttachmentSupport = (doc.getObject("XZ_Plane"), [""])
sketch6.MapMode = "FlatFace"
sketch6.AttachmentOffset = App.Placement(Vector(0, 0, -2), App.Rotation())
add_polygon(sketch6, [(-7, -48), (-7, -29), (7, -29), (7, -48)])
sketch6.addConstraint(Sketcher.Constraint("Vertical", 0))
sketch6.addConstraint(Sketcher.Constraint("Horizontal", 1))
sketch6.addConstraint(Sketcher.Constraint("Vertical", 2))
sketch6.addConstraint(Sketcher.Constraint("Horizontal", 3))
sketch6.addConstraint(Sketcher.Constraint("DistanceY", 0, 1, 0, 2, 19.0))
sketch6.addConstraint(Sketcher.Constraint("DistanceY", 0, 2, -1, 1, 29.0))
sketch6.addConstraint(Sketcher.Constraint("DistanceX", 1, 1, 1, 2, 14.300097))
sketch6.addConstraint(Sketcher.Constraint("DistanceX", 0, 2, -1, 1, 7.150048))
pocket4 = body.newObject("PartDesign::Pocket", "Pocket003")
pocket4.Profile = sketch6
pocket4.Length = 10
pocket4.Reversed = True

sketch7 = body.newObject("Sketcher::SketchObject", "Sketch006")
sketch7.AttachmentSupport = (doc.getObject("XZ_Plane"), [""])
sketch7.MapMode = "FlatFace"
sketch7.AttachmentOffset = App.Placement(Vector(0, 0, -2), App.Rotation())
add_polygon(sketch7, [(7.2, -41.5), (7.2, -47.5), (-7.2, -47.5), (-7.2, -41.5)])
sketch7.addGeometry(Part.Circle(Vector(0, -44.5, 0), Vector(0, 0, 1), 1.6), False)
sketch7.addConstraint(Sketcher.Constraint("Vertical", 0))
sketch7.addConstraint(Sketcher.Constraint("Horizontal", 1))
sketch7.addConstraint(Sketcher.Constraint("Vertical", 2))
sketch7.addConstraint(Sketcher.Constraint("Horizontal", 3))
sketch7.addConstraint(Sketcher.Constraint("PointOnObject", 4, 3, -2))
sketch7.addConstraint(Sketcher.Constraint("Diameter", 4, 3.2))
sketch7.addConstraint(Sketcher.Constraint("DistanceY", 0, 2, 0, 1, 6.0))
sketch7.addConstraint(Sketcher.Constraint("DistanceY", 0, 2, 4, 3, 3.0))
sketch7.addConstraint(Sketcher.Constraint("DistanceY", 4, 3, -1, 1, 44.5))
sketch7.addConstraint(Sketcher.Constraint("DistanceX", 1, 2, 1, 1, 14.300097))
sketch7.addConstraint(Sketcher.Constraint("DistanceX", -1, 1, 0, 2, 7.150048))
pad3 = body.newObject("PartDesign::Pad", "Pad002")
pad3.Profile = sketch7
pad3.Length = 2
doc.recompute()

fillet4 = body.newObject("PartDesign::Fillet", "Fillet003")
fillet4.Base = (pad3, edges_at(pad3, [
    (7.15, 1, -41.5),
    (7.15, 1, -47.5),
    (-7.15, 1, -47.5),
    (-7.15, 1, -41.5),
    (11.15, 1, -52),
    (11.15, 1, -22),
    (4, 1, -6),
    (-4, 1, -6),
    (-11.15, 1, -22),
    (-11.15, 1, -52),
]))
fillet4.Radius = 1
doc.recompute()

fillet5 = body.newObject("PartDesign::Fillet", "Fillet004")
fillet5.Base = (fillet4, edges_at(fillet4, [
    (-23.368, 1, -66.515),
    (-13.02, 1, -69.287),
    (5.356, 1, -70.296),
    (-5.356, 1, -70.296),
    (-7.662, 1, -70.082),
    (-25.539, 1, -65.711),
    (-30.509, 1, -63.556),
    (30.509, 1, -63.556),
    (28.407, 1, -64.524),
    (23.368, 1, -66.515),
    (13.02, 1, -69.287),
    (10.738, 1, -69.677),
    (7.662, 1, -70.082),
    (25.515, 1, -65.721),
    (-28.406, 1, -64.524),
    (-10.738, 1, -69.677),
]))
fillet5.Radius = 1

doc.recompute()
